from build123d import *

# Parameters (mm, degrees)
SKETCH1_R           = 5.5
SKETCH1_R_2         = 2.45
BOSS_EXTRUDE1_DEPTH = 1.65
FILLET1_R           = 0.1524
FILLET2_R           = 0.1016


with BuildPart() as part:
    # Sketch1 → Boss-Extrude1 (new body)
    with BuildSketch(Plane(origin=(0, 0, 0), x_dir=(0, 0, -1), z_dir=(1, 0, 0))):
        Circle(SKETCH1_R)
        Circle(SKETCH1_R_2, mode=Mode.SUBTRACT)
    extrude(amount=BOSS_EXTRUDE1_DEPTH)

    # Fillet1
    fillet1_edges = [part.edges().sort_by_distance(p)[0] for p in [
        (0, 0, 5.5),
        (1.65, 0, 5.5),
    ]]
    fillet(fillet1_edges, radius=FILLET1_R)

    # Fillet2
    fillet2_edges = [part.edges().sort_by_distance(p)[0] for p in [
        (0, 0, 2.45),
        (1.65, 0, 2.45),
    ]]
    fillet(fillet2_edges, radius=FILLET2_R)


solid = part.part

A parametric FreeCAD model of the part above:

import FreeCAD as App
import Part
import Sketcher

V = App.Vector


def edges_at(feature, points):
    """Names of the edges that pass closest to the given points."""
    edges = feature.Shape.Edges
    near = lambda p: min(range(len(edges)), key=lambda i: edges[i].distToShape(Part.Vertex(*p))[0])
    return sorted({f"Edge{near(p) + 1}" for p in points})

doc = App.newDocument("Part")
params = doc.addObject("Spreadsheet::Sheet", "Params")
for row, (alias, value) in enumerate([
    ("sketch1_diameter", "11 mm"),
    ("sketch1_diameter2", "4.9 mm"),
    ("pad1_length", "1.65 mm"),
    ("fillet_radius", "0.1524 mm"),
    ("fillet2_radius", "0.1016 mm"),
], start=1):
    params.set(f"A{row}", alias)
    params.set(f"B{row}", "=" + value)
    params.setAlias(f"B{row}", alias)

body = doc.addObject("PartDesign::Body", "Body")

# Sketch on YZ plane
sketch1 = body.newObject("Sketcher::SketchObject", "Sketch")
sketch1.AttachmentSupport = (doc.getObject("YZ_Plane"), [""])
sketch1.MapMode = "FlatFace"
sketch1.addGeometry([
    Part.Circle(V(0, 0, 0), V(0, 0, 1), 5.5),
    Part.Circle(V(0, 0, 0), V(0, 0, 1), 2.5),
], False)
sketch1.addConstraint([
    Sketcher.Constraint("Coincident", 0, 3, -1, 1),
    Sketcher.Constraint("Coincident", 1, 3, -1, 1),
    Sketcher.Constraint("Diameter", 0, 11.0),
    Sketcher.Constraint("Diameter", 1, 4.9),
])
sketch1.setExpression("Constraints[2]", "Params.sketch1_diameter")
sketch1.setExpression("Constraints[3]", "Params.sketch1_diameter2")
pad1 = body.newObject("PartDesign::Pad", "Pad")
pad1.Profile = sketch1
pad1.setExpression("Length", "Params.pad1_length")
doc.recompute()

fillet = body.newObject("PartDesign::Fillet", "Fillet")
fillet.Base = (pad1, edges_at(pad1, [(0, 0, 5.5), (1.65, 0, 5.5)]))
fillet.setExpression("Radius", "Params.fillet_radius")
doc.recompute()

fillet2 = body.newObject("PartDesign::Fillet", "Fillet001")
fillet2.Base = (fillet, edges_at(fillet, [(0, 0, 2.45), (1.65, 0, 2.45)]))
fillet2.setExpression("Radius", "Params.fillet2_radius")

doc.recompute()
